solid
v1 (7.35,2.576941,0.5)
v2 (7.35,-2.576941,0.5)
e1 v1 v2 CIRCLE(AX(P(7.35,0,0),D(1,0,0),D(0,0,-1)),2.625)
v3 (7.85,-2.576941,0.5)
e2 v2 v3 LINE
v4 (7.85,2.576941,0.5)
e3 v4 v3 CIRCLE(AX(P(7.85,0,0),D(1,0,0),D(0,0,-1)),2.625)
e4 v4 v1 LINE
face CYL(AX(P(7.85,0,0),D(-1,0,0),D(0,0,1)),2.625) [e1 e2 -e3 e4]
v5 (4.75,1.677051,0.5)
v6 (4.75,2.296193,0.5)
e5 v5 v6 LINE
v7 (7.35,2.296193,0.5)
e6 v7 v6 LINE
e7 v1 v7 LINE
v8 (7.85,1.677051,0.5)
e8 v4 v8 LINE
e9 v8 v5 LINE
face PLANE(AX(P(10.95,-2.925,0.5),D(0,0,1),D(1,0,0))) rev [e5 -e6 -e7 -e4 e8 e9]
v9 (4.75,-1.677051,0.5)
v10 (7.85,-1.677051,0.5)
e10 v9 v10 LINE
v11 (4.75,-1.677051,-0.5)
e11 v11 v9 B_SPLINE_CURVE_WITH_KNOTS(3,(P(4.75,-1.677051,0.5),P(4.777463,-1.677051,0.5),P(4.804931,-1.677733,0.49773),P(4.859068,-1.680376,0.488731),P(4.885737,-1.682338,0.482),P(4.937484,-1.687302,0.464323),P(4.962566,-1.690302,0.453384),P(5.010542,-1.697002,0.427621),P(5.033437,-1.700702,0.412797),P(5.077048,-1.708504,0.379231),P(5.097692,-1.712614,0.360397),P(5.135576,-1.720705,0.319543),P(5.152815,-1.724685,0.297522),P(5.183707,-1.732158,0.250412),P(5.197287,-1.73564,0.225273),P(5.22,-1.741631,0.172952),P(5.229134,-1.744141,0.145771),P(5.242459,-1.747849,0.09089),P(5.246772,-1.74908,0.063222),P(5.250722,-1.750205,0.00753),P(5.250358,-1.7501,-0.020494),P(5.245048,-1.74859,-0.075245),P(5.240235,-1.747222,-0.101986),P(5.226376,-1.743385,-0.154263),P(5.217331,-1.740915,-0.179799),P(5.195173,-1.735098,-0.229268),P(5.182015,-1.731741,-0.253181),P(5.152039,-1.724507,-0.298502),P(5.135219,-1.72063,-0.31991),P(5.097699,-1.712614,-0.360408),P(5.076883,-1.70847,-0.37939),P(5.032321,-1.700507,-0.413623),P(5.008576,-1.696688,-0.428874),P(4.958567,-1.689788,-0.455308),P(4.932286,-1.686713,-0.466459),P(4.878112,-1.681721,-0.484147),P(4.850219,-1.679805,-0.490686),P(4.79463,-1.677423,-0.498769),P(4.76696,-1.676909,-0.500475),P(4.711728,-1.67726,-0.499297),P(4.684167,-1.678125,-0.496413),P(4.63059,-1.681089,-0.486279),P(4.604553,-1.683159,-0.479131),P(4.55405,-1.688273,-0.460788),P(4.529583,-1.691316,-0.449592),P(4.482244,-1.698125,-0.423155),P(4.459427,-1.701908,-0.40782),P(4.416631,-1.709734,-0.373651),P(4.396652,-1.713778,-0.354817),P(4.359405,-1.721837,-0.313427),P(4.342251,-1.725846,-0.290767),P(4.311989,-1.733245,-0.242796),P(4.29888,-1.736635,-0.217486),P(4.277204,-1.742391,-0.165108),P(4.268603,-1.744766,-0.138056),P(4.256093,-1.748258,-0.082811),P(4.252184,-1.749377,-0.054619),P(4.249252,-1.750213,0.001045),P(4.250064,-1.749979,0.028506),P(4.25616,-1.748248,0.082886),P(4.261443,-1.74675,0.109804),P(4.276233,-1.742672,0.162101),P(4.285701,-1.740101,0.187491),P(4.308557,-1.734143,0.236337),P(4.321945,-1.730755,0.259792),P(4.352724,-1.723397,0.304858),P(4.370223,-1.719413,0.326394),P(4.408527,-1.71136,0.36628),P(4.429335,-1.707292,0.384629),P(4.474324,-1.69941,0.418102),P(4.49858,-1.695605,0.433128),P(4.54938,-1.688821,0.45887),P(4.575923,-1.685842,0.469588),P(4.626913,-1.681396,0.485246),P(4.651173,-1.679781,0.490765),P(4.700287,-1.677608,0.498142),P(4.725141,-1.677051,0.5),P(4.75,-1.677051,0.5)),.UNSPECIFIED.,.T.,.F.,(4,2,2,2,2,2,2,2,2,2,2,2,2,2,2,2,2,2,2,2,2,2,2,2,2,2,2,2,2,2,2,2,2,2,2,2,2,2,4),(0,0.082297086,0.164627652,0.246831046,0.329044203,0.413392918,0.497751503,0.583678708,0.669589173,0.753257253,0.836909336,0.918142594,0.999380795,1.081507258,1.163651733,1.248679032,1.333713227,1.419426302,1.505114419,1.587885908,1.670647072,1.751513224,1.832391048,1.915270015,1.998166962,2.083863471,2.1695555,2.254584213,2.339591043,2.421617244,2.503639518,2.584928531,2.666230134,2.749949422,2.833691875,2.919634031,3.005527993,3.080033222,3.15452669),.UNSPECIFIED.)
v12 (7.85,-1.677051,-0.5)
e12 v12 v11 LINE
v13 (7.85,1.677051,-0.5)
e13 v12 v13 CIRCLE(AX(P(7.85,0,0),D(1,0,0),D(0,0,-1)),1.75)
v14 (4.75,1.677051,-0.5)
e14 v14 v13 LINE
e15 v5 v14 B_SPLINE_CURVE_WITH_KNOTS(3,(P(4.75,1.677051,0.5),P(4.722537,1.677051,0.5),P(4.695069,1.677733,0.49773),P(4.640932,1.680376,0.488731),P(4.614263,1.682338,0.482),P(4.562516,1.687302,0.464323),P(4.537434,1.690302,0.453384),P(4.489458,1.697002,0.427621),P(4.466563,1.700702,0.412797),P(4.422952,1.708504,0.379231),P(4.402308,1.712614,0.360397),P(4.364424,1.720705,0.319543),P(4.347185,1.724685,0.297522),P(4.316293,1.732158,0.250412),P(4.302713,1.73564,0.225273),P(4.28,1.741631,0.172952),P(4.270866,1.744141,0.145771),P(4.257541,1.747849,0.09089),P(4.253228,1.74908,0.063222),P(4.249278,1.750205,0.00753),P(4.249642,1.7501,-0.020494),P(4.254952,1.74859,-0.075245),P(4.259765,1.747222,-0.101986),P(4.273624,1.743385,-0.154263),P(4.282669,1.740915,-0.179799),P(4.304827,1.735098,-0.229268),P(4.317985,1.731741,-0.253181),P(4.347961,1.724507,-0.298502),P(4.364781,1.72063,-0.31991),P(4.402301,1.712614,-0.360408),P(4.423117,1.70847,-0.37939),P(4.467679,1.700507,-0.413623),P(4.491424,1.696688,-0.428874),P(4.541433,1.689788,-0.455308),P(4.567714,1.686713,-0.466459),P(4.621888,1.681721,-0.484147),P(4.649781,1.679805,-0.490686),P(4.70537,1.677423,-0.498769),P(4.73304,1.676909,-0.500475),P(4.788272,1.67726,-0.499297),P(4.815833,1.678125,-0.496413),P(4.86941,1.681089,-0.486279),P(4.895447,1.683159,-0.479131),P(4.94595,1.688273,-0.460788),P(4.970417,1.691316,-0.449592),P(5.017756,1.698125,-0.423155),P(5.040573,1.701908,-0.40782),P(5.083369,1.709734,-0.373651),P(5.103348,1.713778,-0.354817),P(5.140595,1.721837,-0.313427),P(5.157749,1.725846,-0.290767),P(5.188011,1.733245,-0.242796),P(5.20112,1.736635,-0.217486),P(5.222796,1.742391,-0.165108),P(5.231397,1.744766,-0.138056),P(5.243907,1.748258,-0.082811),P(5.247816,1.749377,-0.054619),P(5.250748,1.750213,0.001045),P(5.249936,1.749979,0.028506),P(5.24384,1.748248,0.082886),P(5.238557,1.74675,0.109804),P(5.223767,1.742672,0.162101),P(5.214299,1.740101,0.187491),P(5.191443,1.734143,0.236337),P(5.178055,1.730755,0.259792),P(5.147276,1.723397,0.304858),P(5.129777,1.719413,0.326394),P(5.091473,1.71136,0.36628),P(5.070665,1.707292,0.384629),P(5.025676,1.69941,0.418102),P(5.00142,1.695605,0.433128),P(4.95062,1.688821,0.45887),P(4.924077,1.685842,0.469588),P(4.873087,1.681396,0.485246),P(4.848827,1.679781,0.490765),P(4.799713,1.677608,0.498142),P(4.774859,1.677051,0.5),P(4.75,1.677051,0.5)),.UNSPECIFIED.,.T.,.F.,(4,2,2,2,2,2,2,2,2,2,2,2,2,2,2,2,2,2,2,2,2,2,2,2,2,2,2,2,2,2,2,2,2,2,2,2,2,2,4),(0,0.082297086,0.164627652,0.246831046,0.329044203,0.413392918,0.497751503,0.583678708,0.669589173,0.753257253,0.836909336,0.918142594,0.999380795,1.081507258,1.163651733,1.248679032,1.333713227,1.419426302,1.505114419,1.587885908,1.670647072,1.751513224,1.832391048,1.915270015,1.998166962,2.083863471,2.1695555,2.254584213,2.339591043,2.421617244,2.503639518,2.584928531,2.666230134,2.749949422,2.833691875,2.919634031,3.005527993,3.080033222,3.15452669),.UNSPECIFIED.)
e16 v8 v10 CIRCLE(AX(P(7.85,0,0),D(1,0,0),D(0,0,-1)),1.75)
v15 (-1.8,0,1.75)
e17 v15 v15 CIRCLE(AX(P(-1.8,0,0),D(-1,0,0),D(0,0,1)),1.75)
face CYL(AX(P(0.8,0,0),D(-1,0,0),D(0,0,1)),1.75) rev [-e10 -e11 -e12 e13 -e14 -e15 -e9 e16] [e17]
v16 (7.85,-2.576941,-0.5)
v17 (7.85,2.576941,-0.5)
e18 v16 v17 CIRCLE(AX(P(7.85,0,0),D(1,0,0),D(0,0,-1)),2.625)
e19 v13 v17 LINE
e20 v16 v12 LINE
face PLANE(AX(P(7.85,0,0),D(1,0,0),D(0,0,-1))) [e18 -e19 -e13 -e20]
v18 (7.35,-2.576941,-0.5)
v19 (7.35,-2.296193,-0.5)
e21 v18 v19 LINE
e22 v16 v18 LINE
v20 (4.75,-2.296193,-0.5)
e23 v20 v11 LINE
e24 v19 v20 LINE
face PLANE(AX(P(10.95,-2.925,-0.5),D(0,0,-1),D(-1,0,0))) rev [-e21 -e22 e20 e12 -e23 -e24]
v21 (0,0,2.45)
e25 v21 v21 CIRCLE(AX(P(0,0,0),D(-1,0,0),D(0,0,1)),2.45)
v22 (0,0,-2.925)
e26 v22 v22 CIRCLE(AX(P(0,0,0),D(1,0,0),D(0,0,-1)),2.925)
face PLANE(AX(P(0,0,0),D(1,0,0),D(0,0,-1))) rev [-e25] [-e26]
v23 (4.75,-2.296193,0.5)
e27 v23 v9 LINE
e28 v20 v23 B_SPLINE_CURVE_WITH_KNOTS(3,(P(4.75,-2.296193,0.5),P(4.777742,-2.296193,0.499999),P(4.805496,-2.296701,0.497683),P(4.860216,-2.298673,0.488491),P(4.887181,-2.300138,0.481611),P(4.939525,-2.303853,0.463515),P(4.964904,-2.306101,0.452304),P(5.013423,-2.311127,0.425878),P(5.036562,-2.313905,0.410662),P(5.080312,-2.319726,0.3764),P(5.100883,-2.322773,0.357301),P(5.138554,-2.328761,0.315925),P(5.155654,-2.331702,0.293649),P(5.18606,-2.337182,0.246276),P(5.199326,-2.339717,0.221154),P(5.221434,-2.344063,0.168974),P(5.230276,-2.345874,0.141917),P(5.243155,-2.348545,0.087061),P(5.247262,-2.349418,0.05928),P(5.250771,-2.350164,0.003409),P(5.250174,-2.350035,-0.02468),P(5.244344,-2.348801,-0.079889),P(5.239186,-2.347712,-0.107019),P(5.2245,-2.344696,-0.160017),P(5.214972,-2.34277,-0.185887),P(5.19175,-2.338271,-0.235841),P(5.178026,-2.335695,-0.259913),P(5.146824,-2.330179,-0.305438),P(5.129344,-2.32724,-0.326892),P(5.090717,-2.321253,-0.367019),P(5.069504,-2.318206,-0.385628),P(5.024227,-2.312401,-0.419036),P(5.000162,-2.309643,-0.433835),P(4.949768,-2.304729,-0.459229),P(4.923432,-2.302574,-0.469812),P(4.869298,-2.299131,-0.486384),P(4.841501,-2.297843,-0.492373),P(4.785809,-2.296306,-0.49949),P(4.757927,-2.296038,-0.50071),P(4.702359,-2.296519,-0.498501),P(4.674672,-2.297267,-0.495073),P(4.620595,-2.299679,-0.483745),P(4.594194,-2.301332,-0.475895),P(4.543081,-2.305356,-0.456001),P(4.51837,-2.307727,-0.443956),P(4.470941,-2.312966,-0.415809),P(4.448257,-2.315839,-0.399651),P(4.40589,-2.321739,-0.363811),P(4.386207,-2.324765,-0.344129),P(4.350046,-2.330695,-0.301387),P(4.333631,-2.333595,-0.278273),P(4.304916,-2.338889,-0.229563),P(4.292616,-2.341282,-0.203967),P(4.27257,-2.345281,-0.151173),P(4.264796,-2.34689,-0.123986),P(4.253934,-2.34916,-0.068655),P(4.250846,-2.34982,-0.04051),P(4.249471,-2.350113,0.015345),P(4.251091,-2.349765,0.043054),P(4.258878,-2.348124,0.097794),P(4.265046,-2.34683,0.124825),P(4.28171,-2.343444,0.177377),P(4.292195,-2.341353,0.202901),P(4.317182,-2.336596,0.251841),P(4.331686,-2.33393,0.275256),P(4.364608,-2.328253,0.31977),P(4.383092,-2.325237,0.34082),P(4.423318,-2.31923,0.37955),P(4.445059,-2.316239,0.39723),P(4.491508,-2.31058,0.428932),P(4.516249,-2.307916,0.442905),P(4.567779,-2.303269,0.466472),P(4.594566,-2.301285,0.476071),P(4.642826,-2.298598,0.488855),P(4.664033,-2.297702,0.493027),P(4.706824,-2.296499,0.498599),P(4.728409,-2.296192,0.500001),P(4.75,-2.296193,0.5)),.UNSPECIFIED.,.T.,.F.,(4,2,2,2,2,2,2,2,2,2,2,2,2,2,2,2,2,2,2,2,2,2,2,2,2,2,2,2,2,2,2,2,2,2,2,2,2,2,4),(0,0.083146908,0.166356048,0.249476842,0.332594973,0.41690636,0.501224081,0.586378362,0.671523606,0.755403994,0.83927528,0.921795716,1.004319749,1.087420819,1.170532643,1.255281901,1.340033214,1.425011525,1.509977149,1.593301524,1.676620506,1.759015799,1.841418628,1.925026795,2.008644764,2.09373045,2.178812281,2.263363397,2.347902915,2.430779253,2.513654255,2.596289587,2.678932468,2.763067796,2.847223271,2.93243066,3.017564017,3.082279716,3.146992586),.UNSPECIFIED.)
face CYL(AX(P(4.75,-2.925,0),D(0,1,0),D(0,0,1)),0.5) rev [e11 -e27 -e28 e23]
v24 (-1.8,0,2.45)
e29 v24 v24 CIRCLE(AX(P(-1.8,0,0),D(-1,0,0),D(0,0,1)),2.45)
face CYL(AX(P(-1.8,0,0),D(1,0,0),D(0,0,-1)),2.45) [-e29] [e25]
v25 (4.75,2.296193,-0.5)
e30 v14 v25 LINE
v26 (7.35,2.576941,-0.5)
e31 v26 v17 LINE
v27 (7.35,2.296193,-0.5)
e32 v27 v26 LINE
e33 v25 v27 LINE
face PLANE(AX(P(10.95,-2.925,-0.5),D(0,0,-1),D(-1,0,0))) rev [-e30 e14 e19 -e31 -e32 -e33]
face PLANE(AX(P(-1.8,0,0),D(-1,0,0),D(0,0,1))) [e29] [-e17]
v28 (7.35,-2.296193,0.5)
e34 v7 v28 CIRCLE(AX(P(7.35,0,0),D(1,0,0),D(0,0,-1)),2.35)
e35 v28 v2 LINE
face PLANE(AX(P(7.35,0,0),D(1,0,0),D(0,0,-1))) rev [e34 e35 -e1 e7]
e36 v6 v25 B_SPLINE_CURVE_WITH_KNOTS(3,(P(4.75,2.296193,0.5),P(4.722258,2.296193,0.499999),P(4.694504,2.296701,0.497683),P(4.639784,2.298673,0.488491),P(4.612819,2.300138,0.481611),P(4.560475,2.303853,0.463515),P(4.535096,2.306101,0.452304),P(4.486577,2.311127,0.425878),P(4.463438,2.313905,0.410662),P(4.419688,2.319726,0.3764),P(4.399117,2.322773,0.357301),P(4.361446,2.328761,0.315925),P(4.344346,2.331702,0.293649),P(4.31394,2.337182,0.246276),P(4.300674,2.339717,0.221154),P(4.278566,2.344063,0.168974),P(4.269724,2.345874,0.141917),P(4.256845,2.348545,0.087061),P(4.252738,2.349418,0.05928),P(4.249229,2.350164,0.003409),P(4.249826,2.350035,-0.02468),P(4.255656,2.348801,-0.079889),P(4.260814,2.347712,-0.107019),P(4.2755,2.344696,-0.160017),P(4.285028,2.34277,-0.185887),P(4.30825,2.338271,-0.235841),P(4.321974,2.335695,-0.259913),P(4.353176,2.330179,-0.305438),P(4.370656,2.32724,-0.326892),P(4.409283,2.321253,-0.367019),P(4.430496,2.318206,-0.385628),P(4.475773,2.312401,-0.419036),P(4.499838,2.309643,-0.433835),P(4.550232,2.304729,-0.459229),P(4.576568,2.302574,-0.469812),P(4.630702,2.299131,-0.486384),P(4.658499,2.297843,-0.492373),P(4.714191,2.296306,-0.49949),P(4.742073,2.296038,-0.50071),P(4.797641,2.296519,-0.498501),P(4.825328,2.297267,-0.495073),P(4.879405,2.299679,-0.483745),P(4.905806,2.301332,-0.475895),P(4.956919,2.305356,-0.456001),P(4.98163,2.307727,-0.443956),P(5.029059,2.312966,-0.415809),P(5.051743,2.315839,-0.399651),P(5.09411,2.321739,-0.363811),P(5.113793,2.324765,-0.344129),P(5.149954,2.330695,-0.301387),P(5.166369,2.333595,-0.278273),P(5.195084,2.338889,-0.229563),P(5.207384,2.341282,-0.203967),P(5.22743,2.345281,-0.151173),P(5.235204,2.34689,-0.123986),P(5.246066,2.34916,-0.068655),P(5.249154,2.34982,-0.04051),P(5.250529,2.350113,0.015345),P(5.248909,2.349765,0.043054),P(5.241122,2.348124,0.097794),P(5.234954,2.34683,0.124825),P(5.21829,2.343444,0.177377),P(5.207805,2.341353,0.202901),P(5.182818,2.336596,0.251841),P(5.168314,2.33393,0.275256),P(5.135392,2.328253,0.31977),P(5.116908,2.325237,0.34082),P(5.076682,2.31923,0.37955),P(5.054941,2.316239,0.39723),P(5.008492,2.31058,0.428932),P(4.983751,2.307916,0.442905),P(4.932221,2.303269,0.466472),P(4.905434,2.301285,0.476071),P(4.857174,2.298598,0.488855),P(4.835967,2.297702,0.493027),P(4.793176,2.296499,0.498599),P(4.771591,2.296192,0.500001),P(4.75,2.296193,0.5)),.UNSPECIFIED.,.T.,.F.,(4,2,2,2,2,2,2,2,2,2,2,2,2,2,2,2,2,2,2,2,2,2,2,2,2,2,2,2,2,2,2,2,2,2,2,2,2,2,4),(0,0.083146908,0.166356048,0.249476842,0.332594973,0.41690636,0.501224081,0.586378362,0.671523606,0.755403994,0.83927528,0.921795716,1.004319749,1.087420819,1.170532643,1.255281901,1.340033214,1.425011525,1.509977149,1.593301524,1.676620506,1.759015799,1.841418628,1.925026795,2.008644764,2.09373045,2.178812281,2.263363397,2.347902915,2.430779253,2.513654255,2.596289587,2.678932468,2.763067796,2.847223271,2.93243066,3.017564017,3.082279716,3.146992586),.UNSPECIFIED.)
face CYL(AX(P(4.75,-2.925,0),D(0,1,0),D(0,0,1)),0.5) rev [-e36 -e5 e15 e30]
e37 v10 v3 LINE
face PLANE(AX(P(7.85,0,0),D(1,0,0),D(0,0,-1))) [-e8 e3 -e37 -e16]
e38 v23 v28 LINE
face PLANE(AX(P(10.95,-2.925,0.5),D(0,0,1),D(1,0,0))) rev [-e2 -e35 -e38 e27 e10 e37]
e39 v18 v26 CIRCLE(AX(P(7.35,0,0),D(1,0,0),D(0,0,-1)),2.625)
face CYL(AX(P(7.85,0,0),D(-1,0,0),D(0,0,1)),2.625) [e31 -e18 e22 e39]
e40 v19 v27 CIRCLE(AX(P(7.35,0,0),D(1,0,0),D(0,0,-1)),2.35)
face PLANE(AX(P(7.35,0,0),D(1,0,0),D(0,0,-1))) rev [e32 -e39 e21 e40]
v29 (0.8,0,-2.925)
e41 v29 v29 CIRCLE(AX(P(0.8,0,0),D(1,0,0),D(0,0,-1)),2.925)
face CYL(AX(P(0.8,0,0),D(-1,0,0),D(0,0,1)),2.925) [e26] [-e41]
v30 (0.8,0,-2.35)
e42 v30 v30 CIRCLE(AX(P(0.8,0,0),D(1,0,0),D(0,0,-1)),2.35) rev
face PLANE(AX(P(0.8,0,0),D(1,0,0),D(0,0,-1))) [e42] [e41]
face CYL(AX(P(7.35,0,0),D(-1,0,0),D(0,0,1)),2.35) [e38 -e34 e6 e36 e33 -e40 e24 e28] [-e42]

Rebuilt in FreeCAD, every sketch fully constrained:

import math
import FreeCAD as App
import Part
import Sketcher

V = App.Vector
Q = App.Units.Quantity

doc = App.newDocument("Part")
body = doc.addObject("PartDesign::Body", "Body")

sketch1 = body.newObject("Sketcher::SketchObject", "Sketch")
sketch1.AttachmentSupport = (doc.getObject("YZ_Plane"), [""])
sketch1.MapMode = "FlatFace"
sketch1.addGeometry([
    Part.Circle(V(0, 0, 0), V(0, 0, 1), 2.9),
    Part.Circle(V(0, 0, 0), V(0, 0, 1), 1.8),
], False)
sketch1.addConstraint([
    Sketcher.Constraint("Coincident", 0, 3, -1, 1),
    Sketcher.Constraint("Coincident", 1, 3, -1, 1),
    Sketcher.Constraint("Diameter", 1, Q("3.5 mm")),
    Sketcher.Constraint("Diameter", 0, Q("5.85 mm")),
])
pad1 = body.newObject("PartDesign::Pad", "Pad")
pad1.Profile = sketch1
pad1.Length = 0.8

sketch2 = body.newObject("Sketcher::SketchObject", "Sketch001")
sketch2.AttachmentSupport = (doc.getObject("YZ_Plane"), [""])
sketch2.MapMode = "FlatFace"
sketch2.addGeometry([
    Part.Circle(V(0, 0, 0), V(0, 0, 1), 2.4),
    Part.Circle(V(0, 0, 0), V(0, 0, 1), 1.8),
], False)
sketch2.addConstraint([
    Sketcher.Constraint("Coincident", 0, 3, -1, 1),
    Sketcher.Constraint("Coincident", 1, 3, -1, 1),
    Sketcher.Constraint("Diameter", 0, Q("4.7 mm")),
    Sketcher.Constraint("Diameter", 1, Q("3.5 mm")),
])
pad2 = body.newObject("PartDesign::Pad", "Pad001")
pad2.Profile = sketch2
pad2.Length = 7.35

sketch3 = body.newObject("Sketcher::SketchObject", "Sketch002")
sketch3.AttachmentSupport = (doc.getObject("YZ_Plane"), [""])
sketch3.MapMode = "FlatFace"
sketch3.AttachmentOffset = App.Placement(V(0, 0, 7.35), App.Rotation())
sketch3.addGeometry([
    Part.Circle(V(0, 0, 0), V(0, 0, 1), 2.6),
    Part.Circle(V(0, 0, 0), V(0, 0, 1), 1.8),
], False)
sketch3.addConstraint([
    Sketcher.Constraint("Coincident", 0, 3, -1, 1),
    Sketcher.Constraint("Coincident", 1, 3, -1, 1),
    Sketcher.Constraint("Diameter", 1, Q("3.5 mm")),
    Sketcher.Constraint("Diameter", 0, Q("5.25 mm")),
])
pad3 = body.newObject("PartDesign::Pad", "Pad002")
pad3.Profile = sketch3
pad3.Length = 0.5

sketch4 = body.newObject("Sketcher::SketchObject", "Sketch003")
sketch4.AttachmentSupport = (doc.getObject("XZ_Plane"), [""])
sketch4.MapMode = "FlatFace"
sketch4.addGeometry([
    Part.LineSegment(V(4.8, 0.5, 0), V(10.9, 0.5, 0)),
    Part.ArcOfCircle(Part.Circle(V(10.9, 0, 0), V(0, 0, 1), 0.5), math.radians(-90), math.radians(90)),
    Part.LineSegment(V(10.9, -0.5, 0), V(4.8, -0.5, 0)),
    Part.ArcOfCircle(Part.Circle(V(4.8, 0, 0), V(0, 0, 1), 0.5), math.radians(90), math.radians(270)),
    Part.LineSegment(V(-10.9, 0.5, 0), V(-4.8, 0.5, 0)),
    Part.ArcOfCircle(Part.Circle(V(-4.8, 0, 0), V(0, 0, 1), 0.5), math.radians(-90), math.radians(90)),
    Part.LineSegment(V(-4.8, -0.5, 0), V(-10.9, -0.5, 0)),
    Part.ArcOfCircle(Part.Circle(V(-10.9, 0, 0), V(0, 0, 1), 0.5), math.radians(90), math.radians(270)),
], False)
sketch4.addConstraint([
    Sketcher.Constraint("Tangent", 0, 2, 1, 2),
    Sketcher.Constraint("Tangent", 1, 1, 2, 1),
    Sketcher.Constraint("Tangent", 2, 2, 3, 2),
    Sketcher.Constraint("Tangent", 3, 1, 0, 1),
    Sketcher.Constraint("Tangent", 4, 2, 5, 2),
    Sketcher.Constraint("Tangent", 5, 1, 6, 1),
    Sketcher.Constraint("Tangent", 6, 2, 7, 2),
    Sketcher.Constraint("Tangent", 7, 1, 4, 1),
    Sketcher.Constraint("Horizontal", 0),
    Sketcher.Constraint("Horizontal", 2),
    Sketcher.Constraint("Horizontal", 4),
    Sketcher.Constraint("Horizontal", 6),
    Sketcher.Constraint("Equal", 3, 5),
    Sketcher.Constraint("Symmetric", 3, 3, 5, 3, -1, 1),
    Sketcher.Constraint("Symmetric", 1, 3, 7, 3, -2),
    Sketcher.Constraint("Radius", 1, Q("0.5 mm")),
    Sketcher.Constraint("DistanceX", 0, 1, 0, 2, Q("6.2 mm")),
    Sketcher.Constraint("DistanceX", 5, 3, 3, 3, Q("9.5 mm")),
])
pocket1 = body.newObject("PartDesign::Pocket", "Pocket")
pocket1.Profile = sketch4
pocket1.Type = "ThroughAll"
pocket1.Midplane = True

sketch5 = body.newObject("Sketcher::SketchObject", "Sketch004")
sketch5.AttachmentSupport = (doc.getObject("YZ_Plane"), [""])
sketch5.MapMode = "FlatFace"
sketch5.AttachmentOffset = App.Placement(V(0, 0, -1.8), App.Rotation())
sketch5.addGeometry([
    Part.Circle(V(0, 0, 0), V(0, 0, 1), 2.5),
    Part.Circle(V(0, 0, 0), V(0, 0, 1), 1.8),
], False)
sketch5.addConstraint([
    Sketcher.Constraint("Coincident", 0, 3, -1, 1),
    Sketcher.Constraint("Coincident", 1, 3, -1, 1),
    Sketcher.Constraint("Diameter", 0, Q("4.9 mm")),
    Sketcher.Constraint("Diameter", 1, Q("3.5 mm")),
])
pad4 = body.newObject("PartDesign::Pad", "Pad003")
pad4.Profile = sketch5
pad4.Length = 1.8

doc.recompute()
